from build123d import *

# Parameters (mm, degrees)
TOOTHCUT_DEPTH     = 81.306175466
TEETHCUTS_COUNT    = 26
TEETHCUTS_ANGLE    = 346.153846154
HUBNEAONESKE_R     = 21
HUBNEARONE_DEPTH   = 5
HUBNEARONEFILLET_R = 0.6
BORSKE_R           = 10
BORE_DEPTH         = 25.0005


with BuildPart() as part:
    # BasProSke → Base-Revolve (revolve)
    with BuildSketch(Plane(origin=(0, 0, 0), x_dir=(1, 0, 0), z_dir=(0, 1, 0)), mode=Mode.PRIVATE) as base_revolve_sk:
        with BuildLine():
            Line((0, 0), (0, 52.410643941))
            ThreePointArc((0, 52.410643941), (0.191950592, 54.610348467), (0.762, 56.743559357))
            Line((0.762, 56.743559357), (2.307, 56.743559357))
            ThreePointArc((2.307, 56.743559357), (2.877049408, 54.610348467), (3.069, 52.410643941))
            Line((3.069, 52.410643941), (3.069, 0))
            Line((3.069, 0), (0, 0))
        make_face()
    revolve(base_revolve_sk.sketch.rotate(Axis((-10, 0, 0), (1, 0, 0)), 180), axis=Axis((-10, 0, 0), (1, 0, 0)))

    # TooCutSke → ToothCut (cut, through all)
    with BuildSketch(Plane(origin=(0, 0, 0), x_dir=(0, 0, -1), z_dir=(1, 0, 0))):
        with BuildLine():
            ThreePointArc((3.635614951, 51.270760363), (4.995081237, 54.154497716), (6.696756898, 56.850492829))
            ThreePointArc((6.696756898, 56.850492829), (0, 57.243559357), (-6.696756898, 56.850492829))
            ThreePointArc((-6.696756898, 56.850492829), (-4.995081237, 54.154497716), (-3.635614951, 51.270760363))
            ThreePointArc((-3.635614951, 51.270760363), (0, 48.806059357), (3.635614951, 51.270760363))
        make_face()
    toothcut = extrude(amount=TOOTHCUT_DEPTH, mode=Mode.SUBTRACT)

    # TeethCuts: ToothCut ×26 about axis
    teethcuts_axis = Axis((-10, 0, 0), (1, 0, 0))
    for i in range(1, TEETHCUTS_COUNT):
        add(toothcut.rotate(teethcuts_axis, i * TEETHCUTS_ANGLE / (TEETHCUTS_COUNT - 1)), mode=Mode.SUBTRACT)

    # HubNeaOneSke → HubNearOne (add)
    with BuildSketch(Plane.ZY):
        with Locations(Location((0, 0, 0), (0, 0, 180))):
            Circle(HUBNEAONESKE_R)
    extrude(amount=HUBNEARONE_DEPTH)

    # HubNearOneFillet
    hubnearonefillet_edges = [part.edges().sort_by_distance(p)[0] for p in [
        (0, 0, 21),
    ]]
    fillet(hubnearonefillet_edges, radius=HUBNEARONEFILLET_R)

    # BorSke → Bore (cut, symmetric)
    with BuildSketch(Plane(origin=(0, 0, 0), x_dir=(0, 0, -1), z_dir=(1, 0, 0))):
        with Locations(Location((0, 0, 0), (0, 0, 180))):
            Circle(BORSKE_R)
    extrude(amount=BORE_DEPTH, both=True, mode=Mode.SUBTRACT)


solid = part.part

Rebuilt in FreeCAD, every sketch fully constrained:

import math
import FreeCAD as App
import Part
import Sketcher


def edges_at(feature, points):
    """Names of the edges that pass closest to the given points."""
    edges = feature.Shape.Edges
    near = lambda p: min(range(len(edges)), key=lambda i: edges[i].distToShape(Part.Vertex(*p))[0])
    return sorted({f"Edge{near(p) + 1}" for p in points})

doc = App.newDocument("Part")
body = doc.addObject("PartDesign::Body", "Body")

# Sketch on XZ plane
sketch1 = body.newObject("Sketcher::SketchObject", "Sketch")
sketch1.AttachmentSupport = (doc.getObject("XZ_Plane"), [""])
sketch1.MapMode = "FlatFace"
sketch1.addGeometry([
    Part.LineSegment(App.Vector(0, -52.4, 0), App.Vector(0, 0, 0)),  # 0
    Part.LineSegment(App.Vector(0, 0, 0), App.Vector(3.1, 0, 0)),  # 1
    Part.LineSegment(App.Vector(3.1, 0, 0), App.Vector(3.1, -52.4, 0)),  # 2
    Part.ArcOfCircle(Part.Circle(App.Vector(-9.6, -52.4, 0), App.Vector(0, 0, 1), 12.7), math.radians(-19.95), math.radians(0)),  # 3
    Part.LineSegment(App.Vector(2.3, -56.7, 0), App.Vector(0.8, -56.7, 0)),  # 4
    Part.ArcOfCircle(Part.Circle(App.Vector(12.7, -52.4, 0), App.Vector(0, 0, 1), 12.7), math.radians(-180), math.radians(-160.05)),  # 5
], False)
sketch1.addConstraint([
    Sketcher.Constraint("Coincident", 0, 2, 1, 1),
    Sketcher.Constraint("Coincident", 1, 2, 2, 1),
    Sketcher.Constraint("Tangent", 2, 2, 3, 2),
    Sketcher.Constraint("Coincident", 3, 1, 4, 1),
    Sketcher.Constraint("Coincident", 4, 2, 5, 2),
    Sketcher.Constraint("Tangent", 5, 1, 0, 1),
    Sketcher.Constraint("Vertical", 0),
    Sketcher.Constraint("Horizontal", 1),
    Sketcher.Constraint("Vertical", 2),
    Sketcher.Constraint("Horizontal", 4),
    Sketcher.Constraint("Coincident", 0, 2, -1, 1),
    Sketcher.Constraint("Equal", 3, 5),
    Sketcher.Constraint("Horizontal", 3, 3, 5, 3),
    Sketcher.Constraint("Radius", 3, 12.7),
    Sketcher.Constraint("DistanceX", 1, 1, 1, 2, 3.069),
    Sketcher.Constraint("DistanceX", 4, 2, 4, 1, 1.545),
    Sketcher.Constraint("DistanceY", 0, 1, 0, 2, 52.410644),
])
revolution = body.newObject("PartDesign::Revolution", "Revolution")
revolution.Profile = sketch1
revolution.ReferenceAxis = (sketch1, ["H_Axis"])
revolution.Angle = 360

# Sketch on YZ plane
sketch2 = body.newObject("Sketcher::SketchObject", "Sketch001")
sketch2.AttachmentSupport = (doc.getObject("YZ_Plane"), [""])
sketch2.MapMode = "FlatFace"
sketch2.addGeometry([
    Part.ArcOfCircle(Part.Circle(App.Vector(41.6, -27.8, 0), App.Vector(0, 0, 1), 26), math.radians(54.23), math.radians(68.27)),
    Part.ArcOfCircle(Part.Circle(App.Vector(0, 0, 0), App.Vector(0, 0, 1), 57.2), math.radians(-6.72), math.radians(6.72)),
    Part.ArcOfCircle(Part.Circle(App.Vector(41.6, 27.8, 0), App.Vector(0, 0, 1), 26), math.radians(-68.27), math.radians(-54.23)),
    Part.ArcOfCircle(Part.Circle(App.Vector(52.7, 0, 0), App.Vector(0, 0, 1), 3.9), math.radians(112), math.radians(248)),
], False)
sketch2.addConstraint([
    Sketcher.Constraint("Coincident", 0, 1, 1, 1),
    Sketcher.Constraint("Coincident", 1, 2, 2, 2),
    Sketcher.Constraint("Tangent", 2, 1, 3, 1),
    Sketcher.Constraint("Tangent", 3, 2, 0, 2),
    Sketcher.Constraint("Coincident", 1, 3, -1, 1),
    Sketcher.Constraint("Equal", 0, 2),
    Sketcher.Constraint("Symmetric", 0, 3, 2, 3, -1),
    Sketcher.Constraint("Radius", 0, 26.04),
    Sketcher.Constraint("Radius", 1, 57.243559),
    Sketcher.Constraint("Radius", 3, 3.91375),
    Sketcher.Constraint("DistanceX", -1, 1, 3, 3, 52.719809),
    Sketcher.Constraint("DistanceX", -1, 1, 2, 1, 51.27076),
])
pocket1 = body.newObject("PartDesign::Pocket", "Pocket")
pocket1.Profile = sketch2
pocket1.Type = "ThroughAll"
pocket1.Reversed = True
doc.recompute()

polarpattern = body.newObject("PartDesign::PolarPattern", "PolarPattern")
polarpattern.Originals = [pocket1]
polarpattern.Axis = (doc.getObject("X_Axis"), [""])
polarpattern.Angle = 360
polarpattern.Occurrences = 26
body.Tip = polarpattern

# Sketch on YZ plane
sketch3 = body.newObject("Sketcher::SketchObject", "Sketch002")
sketch3.AttachmentSupport = (doc.getObject("YZ_Plane"), [""])
sketch3.MapMode = "FlatFace"
sketch3.addGeometry(Part.Circle(App.Vector(0, 0, 0), App.Vector(0, 0, 1), 21), False)
sketch3.addConstraint([
    Sketcher.Constraint("Coincident", 0, 3, -1, 1),
    Sketcher.Constraint("Diameter", 0, 42.0),
])
pad1 = body.newObject("PartDesign::Pad", "Pad")
pad1.Profile = sketch3
pad1.Length = 5
pad1.Reversed = True
doc.recompute()

fillet = body.newObject("PartDesign::Fillet", "Fillet")
fillet.Base = (pad1, edges_at(pad1, [(0, 0, 21)]))
fillet.Radius = 0.6

# Sketch on YZ plane
sketch4 = body.newObject("Sketcher::SketchObject", "Sketch003")
sketch4.AttachmentSupport = (doc.getObject("YZ_Plane"), [""])
sketch4.MapMode = "FlatFace"
sketch4.addGeometry(Part.Circle(App.Vector(0, 0, 0), App.Vector(0, 0, 1), 10), False)
sketch4.addConstraint([
    Sketcher.Constraint("Coincident", 0, 3, -1, 1),
    Sketcher.Constraint("Diameter", 0, 20.0),
])
pocket2 = body.newObject("PartDesign::Pocket", "Pocket001")
pocket2.Profile = sketch4
pocket2.Length = 50.001
pocket2.Midplane = True

doc.recompute()
